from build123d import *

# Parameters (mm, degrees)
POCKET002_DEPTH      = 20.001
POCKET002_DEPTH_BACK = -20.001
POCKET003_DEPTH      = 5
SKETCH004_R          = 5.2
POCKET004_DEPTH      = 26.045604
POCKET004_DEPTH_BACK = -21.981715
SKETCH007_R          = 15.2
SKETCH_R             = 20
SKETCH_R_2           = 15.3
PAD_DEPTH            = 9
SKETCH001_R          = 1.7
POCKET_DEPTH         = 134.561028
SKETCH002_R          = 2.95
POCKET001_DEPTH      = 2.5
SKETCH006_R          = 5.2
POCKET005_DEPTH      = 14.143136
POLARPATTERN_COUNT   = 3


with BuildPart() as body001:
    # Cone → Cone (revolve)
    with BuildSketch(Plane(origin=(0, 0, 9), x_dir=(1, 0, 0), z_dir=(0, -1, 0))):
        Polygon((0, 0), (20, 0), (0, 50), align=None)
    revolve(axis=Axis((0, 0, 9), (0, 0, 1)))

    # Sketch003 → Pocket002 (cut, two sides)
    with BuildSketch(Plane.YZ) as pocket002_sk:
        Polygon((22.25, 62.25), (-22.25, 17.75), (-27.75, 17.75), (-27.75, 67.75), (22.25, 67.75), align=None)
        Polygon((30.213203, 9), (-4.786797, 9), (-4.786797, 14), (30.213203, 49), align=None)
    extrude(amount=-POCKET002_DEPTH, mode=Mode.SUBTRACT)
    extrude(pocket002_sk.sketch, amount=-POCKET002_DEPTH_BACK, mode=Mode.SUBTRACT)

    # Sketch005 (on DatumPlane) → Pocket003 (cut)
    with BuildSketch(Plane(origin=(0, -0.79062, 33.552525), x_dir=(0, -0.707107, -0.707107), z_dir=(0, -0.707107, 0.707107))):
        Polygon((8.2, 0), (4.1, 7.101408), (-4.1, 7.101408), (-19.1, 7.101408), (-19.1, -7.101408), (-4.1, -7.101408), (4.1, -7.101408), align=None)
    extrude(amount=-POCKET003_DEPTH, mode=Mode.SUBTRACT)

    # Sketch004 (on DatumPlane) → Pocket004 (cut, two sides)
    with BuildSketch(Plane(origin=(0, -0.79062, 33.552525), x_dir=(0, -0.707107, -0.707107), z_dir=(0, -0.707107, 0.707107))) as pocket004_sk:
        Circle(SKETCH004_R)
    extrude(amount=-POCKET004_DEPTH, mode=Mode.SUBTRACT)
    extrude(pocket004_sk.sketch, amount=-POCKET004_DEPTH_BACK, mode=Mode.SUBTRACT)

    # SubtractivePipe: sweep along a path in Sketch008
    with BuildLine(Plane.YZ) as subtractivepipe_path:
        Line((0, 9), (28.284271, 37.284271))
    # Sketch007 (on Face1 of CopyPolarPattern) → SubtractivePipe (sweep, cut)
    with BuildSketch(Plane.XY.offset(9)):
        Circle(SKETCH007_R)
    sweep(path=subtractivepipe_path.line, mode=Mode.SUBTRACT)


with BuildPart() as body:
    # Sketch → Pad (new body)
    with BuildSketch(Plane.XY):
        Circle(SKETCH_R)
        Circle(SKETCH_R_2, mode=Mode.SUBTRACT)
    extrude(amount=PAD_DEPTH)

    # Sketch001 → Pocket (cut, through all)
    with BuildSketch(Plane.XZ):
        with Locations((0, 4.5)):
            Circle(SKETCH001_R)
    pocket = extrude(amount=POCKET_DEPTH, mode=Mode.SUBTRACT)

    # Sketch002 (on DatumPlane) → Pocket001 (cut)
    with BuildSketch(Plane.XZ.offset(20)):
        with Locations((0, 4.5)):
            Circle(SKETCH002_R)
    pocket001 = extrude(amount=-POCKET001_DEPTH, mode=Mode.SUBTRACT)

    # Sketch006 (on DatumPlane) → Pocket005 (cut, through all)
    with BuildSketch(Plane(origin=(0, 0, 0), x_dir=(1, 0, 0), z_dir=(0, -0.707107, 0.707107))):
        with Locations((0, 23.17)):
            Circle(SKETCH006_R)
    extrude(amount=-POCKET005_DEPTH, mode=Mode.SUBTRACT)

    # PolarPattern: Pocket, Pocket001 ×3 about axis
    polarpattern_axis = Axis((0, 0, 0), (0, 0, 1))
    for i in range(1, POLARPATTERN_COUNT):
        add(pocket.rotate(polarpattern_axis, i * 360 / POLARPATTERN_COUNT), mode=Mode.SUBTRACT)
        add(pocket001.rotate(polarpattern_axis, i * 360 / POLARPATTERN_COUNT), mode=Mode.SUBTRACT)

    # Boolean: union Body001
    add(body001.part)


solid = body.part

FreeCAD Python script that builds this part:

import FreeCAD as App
import Part
import Sketcher
from FreeCAD import Vector
Q = App.Units.Quantity


def add_polygon(sketch, points):
    """Adds a closed chain of lines whose ends are joined by coincident constraints."""
    first, n = sketch.GeometryCount, len(points)
    for a, b in zip(points, points[1:] + points[:1]):
        sketch.addGeometry(Part.LineSegment(App.Vector(*a, 0), App.Vector(*b, 0)), False)
    for i in range(n):
        sketch.addConstraint(Sketcher.Constraint("Coincident", first + i, 2, first + (i + 1) % n, 1))

doc = App.newDocument("Part")
body = doc.addObject("PartDesign::Body", "Body")

# Sketch on XZ plane
sketch1 = doc.addObject("Sketcher::SketchObject", "Sketch")
body.addObject(sketch1)
sketch1.AttachmentSupport = (doc.XZ_Plane, [""])
sketch1.MapMode = "FlatFace"
add_polygon(sketch1, [(0, 9), (20, 9), (0, 59)])  # lines 0-2
sketch1.addConstraint([
    Sketcher.Constraint("Horizontal", 0),
    Sketcher.Constraint("Vertical", 2),
    Sketcher.Constraint("PointOnObject", 1, 2, -2),
    Sketcher.Constraint("DistanceX", 0, 1, 0, 2, Q("20 mm")),
    Sketcher.Constraint("DistanceY", 2, 2, 2, 1, Q("50 mm")),
    Sketcher.Constraint("DistanceY", -1, 1, 0, 2, Q("9 mm")),
])
revolution = doc.addObject("PartDesign::Revolution", "Revolution")
body.addObject(revolution)
revolution.Profile = sketch1
revolution.ReferenceAxis = (sketch1, ["V_Axis"])
revolution.Angle = 360

# Sketch on YZ plane
sketch2 = doc.addObject("Sketcher::SketchObject", "Sketch001")
body.addObject(sketch2)
sketch2.AttachmentSupport = (doc.YZ_Plane, [""])
sketch2.MapMode = "FlatFace"
add_polygon(sketch2, [(-22, 18), (22, 62), (22, 68), (-28, 68), (-28, 18)])  # lines 0-4
add_polygon(sketch2, [(-5, 9), (30, 9), (30, 49), (-5, 14)])  # lines 5-8
sketch2.addConstraint([
    Sketcher.Constraint("Vertical", 1),
    Sketcher.Constraint("Horizontal", 2),
    Sketcher.Constraint("Vertical", 3),
    Sketcher.Constraint("Horizontal", 4),
    Sketcher.Constraint("Horizontal", 5),
    Sketcher.Constraint("Vertical", 6),
    Sketcher.Constraint("Vertical", 8),
    Sketcher.Constraint("Parallel", 0, 7),
    Sketcher.Constraint("Equal", 4, 1),
    Sketcher.Constraint("Equal", 2, 3),
    Sketcher.Constraint("DistanceX", 2, 2, 2, 1, Q("50 mm")),
    Sketcher.Constraint("DistanceX", 5, 1, 5, 2, Q("35 mm")),
    Sketcher.Constraint("DistanceY", 6, 1, 6, 2, Q("40 mm")),
    Sketcher.Constraint("DistanceX", 4, 1, 4, 2, Q("5.5 mm")),
    Sketcher.Constraint("DistanceY", -1, 1, 5, 2, Q("9 mm")),
    Sketcher.Constraint("DistanceX", -1, 1, 0, 2, Q("22.25 mm")),
    Sketcher.Constraint("DistanceY", -1, 1, 0, 2, Q("62.25 mm")),
    Sketcher.Constraint("DistanceX", -1, 1, 5, 2, Q("30.213203 mm")),
])
pocket1 = doc.addObject("PartDesign::Pocket", "Pocket")
body.addObject(pocket1)
pocket1.Profile = sketch2
pocket1.Type = "ThroughAll"
pocket1.Midplane = True

# Sketch on an angled plane
sketch3 = doc.addObject("Sketcher::SketchObject", "Sketch002")
body.addObject(sketch3)
sketch3.Placement = App.Placement(Vector(0, -0.79062, 33.552525), App.Rotation(Vector(0, -0.707106781, -0.707106781), Vector(0.999999999, 0, 0), Vector(0, -0.707106781, 0.707106781), "ZXY"))
add_polygon(sketch3, [(8, 0), (4, 7), (-19, 7), (-19, -7), (4, -7)])  # lines 0-4
sketch3.addConstraint([
    Sketcher.Constraint("Horizontal", 1),
    Sketcher.Constraint("Vertical", 2),
    Sketcher.Constraint("Horizontal", 3),
    Sketcher.Constraint("Symmetric", 0, 2, 3, 2, -1),
    Sketcher.Constraint("PointOnObject", 4, 2, -1),
    Sketcher.Constraint("Angle", 0, Q("120.000001 deg")),
    Sketcher.Constraint("DistanceX", 1, 2, 1, 1, Q("23.2 mm")),
    Sketcher.Constraint("Distance", 0, Q("8.2 mm")),
    Sketcher.Constraint("DistanceX", -1, 1, 0, 2, Q("4.1 mm")),
])
pocket2 = doc.addObject("PartDesign::Pocket", "Pocket001")
body.addObject(pocket2)
pocket2.Profile = sketch3
pocket2.Length = 5

# Sketch on an angled plane
sketch4 = doc.addObject("Sketcher::SketchObject", "Sketch003")
body.addObject(sketch4)
sketch4.Placement = App.Placement(Vector(0, -0.79062, 33.552525), App.Rotation(Vector(0, -0.707106781, -0.707106781), Vector(0.999999999, 0, 0), Vector(0, -0.707106781, 0.707106781), "ZXY"))
sketch4.addGeometry(Part.Circle(Vector(0, 0, 0), Vector(0, 0, 1), 5), False)
sketch4.addConstraint([
    Sketcher.Constraint("Coincident", 0, 3, -1, 1),
    Sketcher.Constraint("Diameter", 0, Q("10.4 mm")),
])
pocket3 = doc.addObject("PartDesign::Pocket", "Pocket002")
body.addObject(pocket3)
pocket3.Profile = sketch4
pocket3.Type = "ThroughAll"
pocket3.Midplane = True

# Sketch on XY plane
sketch5 = doc.addObject("Sketcher::SketchObject", "Sketch004")
body.addObject(sketch5)
sketch5.AttachmentSupport = (doc.XY_Plane, [""])
sketch5.MapMode = "FlatFace"
sketch5.AttachmentOffset = App.Placement(Vector(0, 0, 9), App.Rotation())
sketch5.addGeometry(Part.Circle(Vector(0, 0, 0), Vector(0, 0, 1), 15), False)
sketch5.addConstraint([
    Sketcher.Constraint("Coincident", 0, 3, -1, 1),
    Sketcher.Constraint("Diameter", 0, Q("30.4 mm")),
])

# Sketch on an angled plane
sketch6 = doc.addObject("Sketcher::SketchObject", "Sketch005")
body.addObject(sketch6)
sketch6.Placement = App.Placement(Vector(0, -4.5, 4.5), App.Rotation(Vector(0, 0.707106781, 0.707106781), Vector(0.999999999, 0, 0), Vector(0, 0.707106781, -0.707106781), "ZXY"))
sketch6.addGeometry(Part.LineSegment(Vector(6, 0, 0), Vector(46, 0, 0)), False)
sketch6.addConstraint([
    Sketcher.Constraint("Horizontal", 0),
    Sketcher.Constraint("PointOnObject", 0, 1, -1),
    Sketcher.Constraint("DistanceX", 0, 1, 0, 2, Q("40 mm")),
    Sketcher.Constraint("DistanceX", -1, 1, 0, 1, Q("6.363961 mm")),
])
doc.recompute()

subtractivepipe = doc.addObject("PartDesign::SubtractivePipe", "SubtractivePipe")
body.addObject(subtractivepipe)
subtractivepipe.Profile = sketch5
subtractivepipe.Spine = (sketch6, ["Edge1"])
body2 = doc.addObject("PartDesign::Body", "Body001")

# Sketch on XY plane
sketch7 = doc.addObject("Sketcher::SketchObject", "Sketch006")
body2.addObject(sketch7)
sketch7.AttachmentSupport = (doc.getObject("XY_Plane001"), [""])
sketch7.MapMode = "FlatFace"
sketch7.addGeometry([
    Part.Circle(Vector(0, 0, 0), Vector(0, 0, 1), 20),
    Part.Circle(Vector(0, 0, 0), Vector(0, 0, 1), 15),
], False)
sketch7.addConstraint([
    Sketcher.Constraint("Coincident", 0, 3, -1, 1),
    Sketcher.Constraint("Coincident", 1, 3, -1, 1),
    Sketcher.Constraint("Diameter", 0, Q("40 mm")),
    Sketcher.Constraint("Diameter", 1, Q("30.6 mm")),
])
pad1 = doc.addObject("PartDesign::Pad", "Pad")
body2.addObject(pad1)
pad1.Profile = sketch7
pad1.Length = 9

# Sketch on XZ plane
sketch8 = doc.addObject("Sketcher::SketchObject", "Sketch007")
body2.addObject(sketch8)
sketch8.AttachmentSupport = (doc.getObject("XZ_Plane001"), [""])
sketch8.MapMode = "FlatFace"
sketch8.addGeometry(Part.Circle(Vector(0, 4.5, 0), Vector(0, 0, 1), 1.7), False)
sketch8.addConstraint([
    Sketcher.Constraint("PointOnObject", 0, 3, -2),
    Sketcher.Constraint("Diameter", 0, Q("3.4 mm")),
    Sketcher.Constraint("DistanceY", -1, 1, 0, 3, Q("4.5 mm")),
])
pocket4 = doc.addObject("PartDesign::Pocket", "Pocket003")
body2.addObject(pocket4)
pocket4.Profile = sketch8
pocket4.Type = "ThroughAll"
pocket4.Reversed = True

# Sketch on XZ plane
sketch9 = doc.addObject("Sketcher::SketchObject", "Sketch008")
body2.addObject(sketch9)
sketch9.AttachmentSupport = (doc.getObject("XZ_Plane001"), [""])
sketch9.MapMode = "FlatFace"
sketch9.AttachmentOffset = App.Placement(Vector(0, 0, 20), App.Rotation())
sketch9.addGeometry(Part.Circle(Vector(0, 4.5, 0), Vector(0, 0, 1), 3), False)
sketch9.addConstraint([
    Sketcher.Constraint("PointOnObject", 0, 3, -2),
    Sketcher.Constraint("Diameter", 0, Q("5.9 mm")),
    Sketcher.Constraint("DistanceY", -1, 1, 0, 3, Q("4.5 mm")),
])
pocket5 = doc.addObject("PartDesign::Pocket", "Pocket004")
body2.addObject(pocket5)
pocket5.Profile = sketch9
pocket5.Length = 2.5

# Sketch on an angled plane
sketch10 = doc.addObject("Sketcher::SketchObject", "Sketch009")
body2.addObject(sketch10)
sketch10.Placement = App.Placement(Vector(0, 0, 0), App.Rotation(Vector(1, 0, 0), Vector(0, 0.707106781, 0.707106781), Vector(0, -0.707106781, 0.707106781), "ZXY"))
sketch10.addGeometry(Part.Circle(Vector(0, 23, 0), Vector(0, 0, 1), 5), False)
sketch10.addConstraint([
    Sketcher.Constraint("PointOnObject", 0, 3, -2),
    Sketcher.Constraint("Diameter", 0, Q("10.4 mm")),
    Sketcher.Constraint("DistanceY", -1, 1, 0, 3, Q("23.17 mm")),
])
pocket6 = doc.addObject("PartDesign::Pocket", "Pocket005")
body2.addObject(pocket6)
pocket6.Profile = sketch10
pocket6.Type = "ThroughAll"
doc.recompute()

polarpattern = doc.addObject("PartDesign::PolarPattern", "PolarPattern")
body2.addObject(polarpattern)
polarpattern.Originals = [pocket4, pocket5]
polarpattern.Axis = (doc.getObject("Z_Axis001"), [""])
polarpattern.Angle = 360
polarpattern.Occurrences = 3
body2.Tip = polarpattern
doc.recompute()

boolean = doc.addObject("PartDesign::Boolean", "Boolean")
body2.addObject(boolean)
boolean.Type = "Fuse"
boolean.addObjects([body])

doc.recompute()
